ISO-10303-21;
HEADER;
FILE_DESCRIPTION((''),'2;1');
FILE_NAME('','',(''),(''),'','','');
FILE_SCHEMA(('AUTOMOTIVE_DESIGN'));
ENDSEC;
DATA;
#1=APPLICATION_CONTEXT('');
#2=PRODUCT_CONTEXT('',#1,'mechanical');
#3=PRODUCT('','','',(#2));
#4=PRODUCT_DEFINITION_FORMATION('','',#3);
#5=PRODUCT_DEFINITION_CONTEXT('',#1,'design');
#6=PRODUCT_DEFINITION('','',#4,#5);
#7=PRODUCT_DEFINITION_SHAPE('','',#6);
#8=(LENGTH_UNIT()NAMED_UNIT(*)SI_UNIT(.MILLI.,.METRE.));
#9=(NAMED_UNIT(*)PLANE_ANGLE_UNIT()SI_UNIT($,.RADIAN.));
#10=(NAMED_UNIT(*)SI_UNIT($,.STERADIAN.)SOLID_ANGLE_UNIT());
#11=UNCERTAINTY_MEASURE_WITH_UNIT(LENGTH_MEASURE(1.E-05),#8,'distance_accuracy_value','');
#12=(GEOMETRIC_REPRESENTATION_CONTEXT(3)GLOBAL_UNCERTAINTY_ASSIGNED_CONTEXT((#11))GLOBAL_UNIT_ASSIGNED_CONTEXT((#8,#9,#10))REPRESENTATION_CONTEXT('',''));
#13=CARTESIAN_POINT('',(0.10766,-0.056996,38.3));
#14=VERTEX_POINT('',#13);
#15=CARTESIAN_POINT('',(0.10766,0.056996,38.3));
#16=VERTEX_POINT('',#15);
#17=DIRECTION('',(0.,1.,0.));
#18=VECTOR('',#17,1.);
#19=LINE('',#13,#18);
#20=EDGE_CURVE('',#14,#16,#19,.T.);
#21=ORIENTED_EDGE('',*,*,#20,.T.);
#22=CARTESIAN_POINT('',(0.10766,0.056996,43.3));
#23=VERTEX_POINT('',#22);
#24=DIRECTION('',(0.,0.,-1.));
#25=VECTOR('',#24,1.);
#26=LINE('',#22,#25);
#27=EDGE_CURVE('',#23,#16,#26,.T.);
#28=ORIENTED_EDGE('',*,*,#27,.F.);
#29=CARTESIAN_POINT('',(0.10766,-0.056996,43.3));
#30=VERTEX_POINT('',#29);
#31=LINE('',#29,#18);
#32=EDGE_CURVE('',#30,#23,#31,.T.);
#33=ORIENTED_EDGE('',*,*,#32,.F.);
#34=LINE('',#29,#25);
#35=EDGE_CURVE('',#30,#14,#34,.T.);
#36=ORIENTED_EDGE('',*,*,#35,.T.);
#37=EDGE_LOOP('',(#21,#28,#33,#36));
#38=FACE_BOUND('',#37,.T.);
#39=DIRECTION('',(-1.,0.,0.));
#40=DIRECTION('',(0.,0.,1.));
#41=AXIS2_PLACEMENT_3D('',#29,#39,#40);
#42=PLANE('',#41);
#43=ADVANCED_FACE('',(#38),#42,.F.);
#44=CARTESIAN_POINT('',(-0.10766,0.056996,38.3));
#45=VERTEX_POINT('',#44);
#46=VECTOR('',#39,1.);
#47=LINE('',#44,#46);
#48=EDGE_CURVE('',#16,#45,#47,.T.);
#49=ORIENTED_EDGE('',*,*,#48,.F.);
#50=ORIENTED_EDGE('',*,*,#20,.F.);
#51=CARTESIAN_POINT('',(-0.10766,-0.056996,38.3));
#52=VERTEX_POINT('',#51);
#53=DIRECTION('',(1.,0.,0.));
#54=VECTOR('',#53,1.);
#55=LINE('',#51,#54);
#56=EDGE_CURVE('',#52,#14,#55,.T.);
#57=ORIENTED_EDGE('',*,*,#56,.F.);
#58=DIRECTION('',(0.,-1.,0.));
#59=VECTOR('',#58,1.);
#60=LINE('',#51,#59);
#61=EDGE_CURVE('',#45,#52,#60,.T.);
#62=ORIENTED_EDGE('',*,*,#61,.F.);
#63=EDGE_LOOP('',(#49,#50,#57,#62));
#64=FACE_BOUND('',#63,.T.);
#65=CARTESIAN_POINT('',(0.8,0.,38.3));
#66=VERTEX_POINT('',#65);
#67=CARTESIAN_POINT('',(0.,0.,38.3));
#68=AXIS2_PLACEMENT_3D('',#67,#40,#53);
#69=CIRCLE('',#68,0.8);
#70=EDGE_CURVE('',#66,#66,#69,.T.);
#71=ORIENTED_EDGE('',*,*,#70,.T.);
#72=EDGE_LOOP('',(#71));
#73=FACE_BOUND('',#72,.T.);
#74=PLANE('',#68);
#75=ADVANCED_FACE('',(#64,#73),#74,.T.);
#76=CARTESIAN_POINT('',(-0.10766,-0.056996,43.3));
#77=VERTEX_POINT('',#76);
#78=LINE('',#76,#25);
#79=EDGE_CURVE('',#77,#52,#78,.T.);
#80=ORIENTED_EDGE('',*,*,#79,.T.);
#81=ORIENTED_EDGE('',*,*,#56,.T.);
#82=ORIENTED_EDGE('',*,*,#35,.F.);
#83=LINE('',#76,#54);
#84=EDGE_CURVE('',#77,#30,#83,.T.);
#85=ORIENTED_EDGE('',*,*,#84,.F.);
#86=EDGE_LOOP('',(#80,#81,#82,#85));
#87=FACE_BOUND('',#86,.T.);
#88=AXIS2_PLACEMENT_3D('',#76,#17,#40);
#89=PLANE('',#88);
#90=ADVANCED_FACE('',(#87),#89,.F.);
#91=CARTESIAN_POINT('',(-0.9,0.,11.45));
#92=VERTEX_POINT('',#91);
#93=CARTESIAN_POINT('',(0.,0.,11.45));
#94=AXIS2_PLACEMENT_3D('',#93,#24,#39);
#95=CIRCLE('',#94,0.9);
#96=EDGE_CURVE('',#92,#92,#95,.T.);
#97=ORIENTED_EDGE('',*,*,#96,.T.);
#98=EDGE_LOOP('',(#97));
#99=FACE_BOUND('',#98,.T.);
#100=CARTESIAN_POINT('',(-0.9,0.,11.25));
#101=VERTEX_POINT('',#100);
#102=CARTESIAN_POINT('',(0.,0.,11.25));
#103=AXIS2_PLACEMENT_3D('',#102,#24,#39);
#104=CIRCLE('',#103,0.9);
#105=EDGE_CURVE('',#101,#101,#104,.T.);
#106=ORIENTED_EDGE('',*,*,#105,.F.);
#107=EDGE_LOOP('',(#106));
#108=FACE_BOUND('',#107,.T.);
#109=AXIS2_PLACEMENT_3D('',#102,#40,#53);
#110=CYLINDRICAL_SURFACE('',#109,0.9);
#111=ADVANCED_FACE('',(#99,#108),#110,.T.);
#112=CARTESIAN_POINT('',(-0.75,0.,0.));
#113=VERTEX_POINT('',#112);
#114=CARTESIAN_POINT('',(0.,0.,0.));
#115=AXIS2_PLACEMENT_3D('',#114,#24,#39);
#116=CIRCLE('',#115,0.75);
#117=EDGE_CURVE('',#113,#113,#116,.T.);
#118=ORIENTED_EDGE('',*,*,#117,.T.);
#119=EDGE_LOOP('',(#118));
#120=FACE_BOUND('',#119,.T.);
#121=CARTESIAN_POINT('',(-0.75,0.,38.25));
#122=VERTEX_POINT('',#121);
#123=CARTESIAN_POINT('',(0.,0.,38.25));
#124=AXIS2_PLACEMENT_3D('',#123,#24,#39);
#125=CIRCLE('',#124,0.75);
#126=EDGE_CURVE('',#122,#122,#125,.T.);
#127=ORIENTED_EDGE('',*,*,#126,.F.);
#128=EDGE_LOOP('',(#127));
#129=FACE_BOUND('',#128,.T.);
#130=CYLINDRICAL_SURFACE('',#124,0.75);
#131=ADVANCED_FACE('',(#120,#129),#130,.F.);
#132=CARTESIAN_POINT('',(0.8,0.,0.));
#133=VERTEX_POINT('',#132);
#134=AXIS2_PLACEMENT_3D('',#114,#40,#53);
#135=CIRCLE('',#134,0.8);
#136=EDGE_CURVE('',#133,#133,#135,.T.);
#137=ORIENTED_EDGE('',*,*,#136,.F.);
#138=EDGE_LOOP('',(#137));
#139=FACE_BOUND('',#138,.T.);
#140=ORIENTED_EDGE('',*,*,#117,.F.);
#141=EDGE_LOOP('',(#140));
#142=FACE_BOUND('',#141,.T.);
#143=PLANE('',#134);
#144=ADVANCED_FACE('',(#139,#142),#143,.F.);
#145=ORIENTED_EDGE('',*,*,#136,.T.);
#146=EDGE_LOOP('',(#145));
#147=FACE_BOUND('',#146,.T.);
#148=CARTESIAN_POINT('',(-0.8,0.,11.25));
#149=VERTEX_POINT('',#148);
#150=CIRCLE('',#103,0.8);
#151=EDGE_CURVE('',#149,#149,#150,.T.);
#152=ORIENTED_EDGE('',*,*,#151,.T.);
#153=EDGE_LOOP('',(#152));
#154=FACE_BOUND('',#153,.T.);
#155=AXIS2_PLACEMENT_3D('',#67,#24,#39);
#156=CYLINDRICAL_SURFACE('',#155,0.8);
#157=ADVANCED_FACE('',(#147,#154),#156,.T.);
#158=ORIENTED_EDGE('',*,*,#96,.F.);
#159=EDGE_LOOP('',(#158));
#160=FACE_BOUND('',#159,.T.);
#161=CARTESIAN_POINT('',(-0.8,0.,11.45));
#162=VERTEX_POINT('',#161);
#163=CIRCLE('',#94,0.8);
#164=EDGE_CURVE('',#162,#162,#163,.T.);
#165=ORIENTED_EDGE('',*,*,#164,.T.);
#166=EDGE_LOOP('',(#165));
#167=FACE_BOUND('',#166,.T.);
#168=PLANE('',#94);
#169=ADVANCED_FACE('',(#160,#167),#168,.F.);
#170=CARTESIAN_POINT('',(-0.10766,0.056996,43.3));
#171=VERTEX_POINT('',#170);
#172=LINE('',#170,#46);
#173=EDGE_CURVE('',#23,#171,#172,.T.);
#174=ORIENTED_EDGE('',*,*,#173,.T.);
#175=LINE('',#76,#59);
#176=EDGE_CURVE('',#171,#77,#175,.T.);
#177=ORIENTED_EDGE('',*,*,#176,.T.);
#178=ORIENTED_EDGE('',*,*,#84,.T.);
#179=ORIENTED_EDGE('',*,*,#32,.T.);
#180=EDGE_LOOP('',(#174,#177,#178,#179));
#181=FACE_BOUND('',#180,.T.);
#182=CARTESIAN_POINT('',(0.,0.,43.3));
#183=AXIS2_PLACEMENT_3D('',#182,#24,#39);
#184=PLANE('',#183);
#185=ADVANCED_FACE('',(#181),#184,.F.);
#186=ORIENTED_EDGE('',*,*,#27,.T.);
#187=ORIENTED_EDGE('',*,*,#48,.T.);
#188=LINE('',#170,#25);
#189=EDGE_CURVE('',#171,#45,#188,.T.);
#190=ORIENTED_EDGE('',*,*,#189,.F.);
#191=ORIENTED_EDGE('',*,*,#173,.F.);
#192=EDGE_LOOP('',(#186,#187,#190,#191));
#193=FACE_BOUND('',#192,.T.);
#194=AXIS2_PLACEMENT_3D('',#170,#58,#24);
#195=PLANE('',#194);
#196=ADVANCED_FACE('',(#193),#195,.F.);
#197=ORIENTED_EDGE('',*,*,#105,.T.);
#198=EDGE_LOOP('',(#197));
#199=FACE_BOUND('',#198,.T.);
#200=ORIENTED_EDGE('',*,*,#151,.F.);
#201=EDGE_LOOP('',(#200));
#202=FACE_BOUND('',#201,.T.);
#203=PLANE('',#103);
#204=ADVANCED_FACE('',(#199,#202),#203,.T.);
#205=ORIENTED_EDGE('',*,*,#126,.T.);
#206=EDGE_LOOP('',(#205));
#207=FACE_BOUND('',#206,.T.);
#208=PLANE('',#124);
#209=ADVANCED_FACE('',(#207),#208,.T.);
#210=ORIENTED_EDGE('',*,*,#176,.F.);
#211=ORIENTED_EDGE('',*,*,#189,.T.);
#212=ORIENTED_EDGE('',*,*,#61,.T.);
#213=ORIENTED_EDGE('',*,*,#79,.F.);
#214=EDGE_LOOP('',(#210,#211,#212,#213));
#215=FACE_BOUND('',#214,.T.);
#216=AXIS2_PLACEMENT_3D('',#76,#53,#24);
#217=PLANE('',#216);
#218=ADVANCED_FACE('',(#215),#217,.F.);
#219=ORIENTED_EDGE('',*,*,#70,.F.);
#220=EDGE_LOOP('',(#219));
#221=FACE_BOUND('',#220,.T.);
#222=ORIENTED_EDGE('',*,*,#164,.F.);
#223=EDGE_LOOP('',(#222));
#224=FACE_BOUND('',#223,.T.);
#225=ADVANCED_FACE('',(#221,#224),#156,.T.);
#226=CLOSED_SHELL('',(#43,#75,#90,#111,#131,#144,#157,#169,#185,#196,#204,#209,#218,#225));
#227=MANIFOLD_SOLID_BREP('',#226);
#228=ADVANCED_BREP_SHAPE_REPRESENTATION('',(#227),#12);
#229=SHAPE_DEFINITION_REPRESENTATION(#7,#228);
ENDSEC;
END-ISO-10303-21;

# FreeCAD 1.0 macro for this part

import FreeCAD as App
import Part
import Sketcher

V = App.Vector


def add_polygon(sketch, points):
    """Adds a closed chain of lines whose ends are joined by coincident constraints."""
    first, n = sketch.GeometryCount, len(points)
    for a, b in zip(points, points[1:] + points[:1]):
        sketch.addGeometry(Part.LineSegment(App.Vector(*a, 0), App.Vector(*b, 0)), False)
    for i in range(n):
        sketch.addConstraint(Sketcher.Constraint("Coincident", first + i, 2, first + (i + 1) % n, 1))

doc = App.newDocument("Part")
body = doc.addObject("PartDesign::Body", "Body")

sketch1 = body.newObject("Sketcher::SketchObject", "Sketch")
sketch1.AttachmentSupport = (doc.getObject("XY_Plane"), [""])
sketch1.MapMode = "FlatFace"
sketch1.addGeometry(Part.Circle(V(0, 0, 0), V(0, 0, 1), 0.8), False)
sketch1.addConstraint([
    Sketcher.Constraint("Coincident", 0, 3, -1, 1),
    Sketcher.Constraint("Diameter", 0, 1.6),
])
pad1 = body.newObject("PartDesign::Pad", "Pad")
pad1.Profile = sketch1
pad1.Length = 38.3

sketch2 = body.newObject("Sketcher::SketchObject", "Sketch001")
sketch2.AttachmentSupport = (doc.getObject("XY_Plane"), [""])
sketch2.MapMode = "FlatFace"
sketch2.AttachmentOffset = App.Placement(V(0, 0, 11.45), App.Rotation())
sketch2.addGeometry(Part.Circle(V(0, 0, 0), V(0, 0, 1), 0.9), False)
sketch2.addConstraint([
    Sketcher.Constraint("Coincident", 0, 3, -1, 1),
    Sketcher.Constraint("Diameter", 0, 1.8),
])
pad2 = body.newObject("PartDesign::Pad", "Pad001")
pad2.Profile = sketch2
pad2.Length = 0.2
pad2.Reversed = True

sketch3 = body.newObject("Sketcher::SketchObject", "Sketch002")
sketch3.AttachmentSupport = (doc.getObject("XY_Plane"), [""])
sketch3.MapMode = "FlatFace"
sketch3.addGeometry(Part.Circle(V(0, 0, 0), V(0, 0, 1), 0.75), False)
sketch3.addConstraint([
    Sketcher.Constraint("Coincident", 0, 3, -1, 1),
    Sketcher.Constraint("Diameter", 0, 1.5),
])
pocket1 = body.newObject("PartDesign::Pocket", "Pocket")
pocket1.Profile = sketch3
pocket1.Length = 38.25
pocket1.Reversed = True

sketch4 = body.newObject("Sketcher::SketchObject", "Sketch003")
sketch4.AttachmentSupport = (doc.getObject("XY_Plane"), [""])
sketch4.MapMode = "FlatFace"
sketch4.AttachmentOffset = App.Placement(V(0, 0, 38.3), App.Rotation())
add_polygon(sketch4, [(-0.10766, 0.056996), (-0.10766, -0.056996), (0.10766, -0.056996), (0.10766, 0.056996)])
sketch4.addConstraint([
    Sketcher.Constraint("Vertical", 0),
    Sketcher.Constraint("Horizontal", 1),
    Sketcher.Constraint("Vertical", 2),
    Sketcher.Constraint("Horizontal", 3),
    Sketcher.Constraint("Symmetric", 0, 2, 2, 2, -1, 1),
    Sketcher.Constraint("DistanceX", 1, 1, 1, 2, 0.21532),
    Sketcher.Constraint("DistanceY", 0, 2, 0, 1, 0.113993),
])
pad3 = body.newObject("PartDesign::Pad", "Pad002")
pad3.Profile = sketch4
pad3.Length = 5

doc.recompute()
